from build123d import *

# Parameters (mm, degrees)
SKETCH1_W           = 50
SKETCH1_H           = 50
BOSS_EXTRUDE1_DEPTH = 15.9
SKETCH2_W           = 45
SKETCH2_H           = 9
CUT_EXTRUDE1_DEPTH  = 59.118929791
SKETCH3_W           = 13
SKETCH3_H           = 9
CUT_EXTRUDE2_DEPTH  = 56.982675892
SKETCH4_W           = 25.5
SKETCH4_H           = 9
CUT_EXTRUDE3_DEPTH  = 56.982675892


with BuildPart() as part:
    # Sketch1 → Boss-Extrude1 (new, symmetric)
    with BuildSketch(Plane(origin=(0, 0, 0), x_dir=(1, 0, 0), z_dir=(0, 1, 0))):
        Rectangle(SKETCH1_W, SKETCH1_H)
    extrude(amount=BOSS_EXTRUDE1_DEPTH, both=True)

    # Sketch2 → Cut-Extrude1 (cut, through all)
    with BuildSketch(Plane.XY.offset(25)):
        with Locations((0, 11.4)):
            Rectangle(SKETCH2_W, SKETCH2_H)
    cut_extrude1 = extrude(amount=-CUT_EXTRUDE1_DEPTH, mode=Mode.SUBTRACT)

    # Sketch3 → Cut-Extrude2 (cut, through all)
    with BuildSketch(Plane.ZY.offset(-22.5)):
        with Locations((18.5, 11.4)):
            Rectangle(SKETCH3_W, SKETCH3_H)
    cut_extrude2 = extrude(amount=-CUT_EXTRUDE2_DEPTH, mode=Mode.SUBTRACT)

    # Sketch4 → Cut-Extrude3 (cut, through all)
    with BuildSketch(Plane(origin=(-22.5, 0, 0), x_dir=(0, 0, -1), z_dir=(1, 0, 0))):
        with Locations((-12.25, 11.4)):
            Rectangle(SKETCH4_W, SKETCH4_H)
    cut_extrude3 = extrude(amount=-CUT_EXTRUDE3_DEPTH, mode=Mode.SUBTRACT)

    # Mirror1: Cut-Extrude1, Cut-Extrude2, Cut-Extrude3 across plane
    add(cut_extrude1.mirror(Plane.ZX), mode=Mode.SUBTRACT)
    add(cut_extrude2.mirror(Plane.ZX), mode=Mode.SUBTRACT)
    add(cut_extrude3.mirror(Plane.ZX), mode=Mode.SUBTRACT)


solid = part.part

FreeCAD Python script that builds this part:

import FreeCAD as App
import Part
import Sketcher
from FreeCAD import Vector
Q = App.Units.Quantity

doc = App.newDocument("Part")
body = doc.addObject("PartDesign::Body", "Body")

sketch1 = body.newObject("Sketcher::SketchObject", "Sketch")
sketch1.AttachmentSupport = (doc.getObject("XZ_Plane"), [""])
sketch1.MapMode = "FlatFace"
sketch1.addGeometry(Part.LineSegment(Vector(-25, -25, 0), Vector(-25, 25, 0)), False)
sketch1.addGeometry(Part.LineSegment(Vector(-25, 25, 0), Vector(25, 25, 0)), False)
sketch1.addGeometry(Part.LineSegment(Vector(25, 25, 0), Vector(25, -25, 0)), False)
sketch1.addGeometry(Part.LineSegment(Vector(25, -25, 0), Vector(-25, -25, 0)), False)
sketch1.addConstraint(Sketcher.Constraint("Coincident", 0, 2, 1, 1))
sketch1.addConstraint(Sketcher.Constraint("Coincident", 1, 2, 2, 1))
sketch1.addConstraint(Sketcher.Constraint("Coincident", 2, 2, 3, 1))
sketch1.addConstraint(Sketcher.Constraint("Coincident", 3, 2, 0, 1))
sketch1.addConstraint(Sketcher.Constraint("Vertical", 0))
sketch1.addConstraint(Sketcher.Constraint("Horizontal", 1))
sketch1.addConstraint(Sketcher.Constraint("Vertical", 2))
sketch1.addConstraint(Sketcher.Constraint("Horizontal", 3))
sketch1.addConstraint(Sketcher.Constraint("Symmetric", 0, 2, 2, 2, -1, 1))
sketch1.addConstraint(Sketcher.Constraint("Equal", 3, 0))
sketch1.addConstraint(Sketcher.Constraint("DistanceX", 1, 1, 1, 2, Q("50 mm")))
pad1 = body.newObject("PartDesign::Pad", "Pad")
pad1.Profile = sketch1
pad1.Length = 31.8
pad1.Midplane = True

sketch2 = body.newObject("Sketcher::SketchObject", "Sketch001")
sketch2.AttachmentSupport = (doc.getObject("XY_Plane"), [""])
sketch2.MapMode = "FlatFace"
sketch2.AttachmentOffset = App.Placement(Vector(0, 0, 25), App.Rotation())
sketch2.addGeometry(Part.LineSegment(Vector(-22, 16, 0), Vector(-22, 7, 0)), False)
sketch2.addGeometry(Part.LineSegment(Vector(-22, 7, 0), Vector(22, 7, 0)), False)
sketch2.addGeometry(Part.LineSegment(Vector(22, 7, 0), Vector(22, 16, 0)), False)
sketch2.addGeometry(Part.LineSegment(Vector(22, 16, 0), Vector(-22, 16, 0)), False)
sketch2.addConstraint(Sketcher.Constraint("Coincident", 0, 2, 1, 1))
sketch2.addConstraint(Sketcher.Constraint("Coincident", 1, 2, 2, 1))
sketch2.addConstraint(Sketcher.Constraint("Coincident", 2, 2, 3, 1))
sketch2.addConstraint(Sketcher.Constraint("Coincident", 3, 2, 0, 1))
sketch2.addConstraint(Sketcher.Constraint("Vertical", 0))
sketch2.addConstraint(Sketcher.Constraint("Horizontal", 1))
sketch2.addConstraint(Sketcher.Constraint("Vertical", 2))
sketch2.addConstraint(Sketcher.Constraint("Horizontal", 3))
sketch2.addConstraint(Sketcher.Constraint("DistanceX", 1, 1, 1, 2, Q("45 mm")))
sketch2.addConstraint(Sketcher.Constraint("DistanceY", 0, 2, 0, 1, Q("9 mm")))
sketch2.addConstraint(Sketcher.Constraint("DistanceX", 0, 2, -1, 1, Q("22.5 mm")))
sketch2.addConstraint(Sketcher.Constraint("DistanceY", -1, 1, 0, 2, Q("6.9 mm")))
pocket1 = body.newObject("PartDesign::Pocket", "Pocket")
pocket1.Profile = sketch2
pocket1.Type = "ThroughAll"

sketch3 = body.newObject("Sketcher::SketchObject", "Sketch002")
sketch3.AttachmentSupport = (doc.getObject("YZ_Plane"), [""])
sketch3.MapMode = "FlatFace"
sketch3.AttachmentOffset = App.Placement(Vector(0, 0, 22.5), App.Rotation())
sketch3.addGeometry(Part.LineSegment(Vector(16, 12, 0), Vector(7, 12, 0)), False)
sketch3.addGeometry(Part.LineSegment(Vector(7, 12, 0), Vector(7, 25, 0)), False)
sketch3.addGeometry(Part.LineSegment(Vector(7, 25, 0), Vector(16, 25, 0)), False)
sketch3.addGeometry(Part.LineSegment(Vector(16, 25, 0), Vector(16, 12, 0)), False)
sketch3.addConstraint(Sketcher.Constraint("Coincident", 0, 2, 1, 1))
sketch3.addConstraint(Sketcher.Constraint("Coincident", 1, 2, 2, 1))
sketch3.addConstraint(Sketcher.Constraint("Coincident", 2, 2, 3, 1))
sketch3.addConstraint(Sketcher.Constraint("Coincident", 3, 2, 0, 1))
sketch3.addConstraint(Sketcher.Constraint("Horizontal", 0))
sketch3.addConstraint(Sketcher.Constraint("Vertical", 1))
sketch3.addConstraint(Sketcher.Constraint("Horizontal", 2))
sketch3.addConstraint(Sketcher.Constraint("Vertical", 3))
sketch3.addConstraint(Sketcher.Constraint("DistanceX", 0, 2, 0, 1, Q("9 mm")))
sketch3.addConstraint(Sketcher.Constraint("DistanceY", 1, 1, 1, 2, Q("13 mm")))
sketch3.addConstraint(Sketcher.Constraint("DistanceY", -1, 1, 0, 2, Q("12 mm")))
sketch3.addConstraint(Sketcher.Constraint("DistanceX", -1, 1, 0, 2, Q("6.9 mm")))
pocket2 = body.newObject("PartDesign::Pocket", "Pocket001")
pocket2.Profile = sketch3
pocket2.Type = "ThroughAll"
pocket2.Reversed = True

sketch4 = body.newObject("Sketcher::SketchObject", "Sketch003")
sketch4.AttachmentSupport = (doc.getObject("YZ_Plane"), [""])
sketch4.MapMode = "FlatFace"
sketch4.AttachmentOffset = App.Placement(Vector(0, 0, -22.5), App.Rotation())
sketch4.addGeometry(Part.LineSegment(Vector(16, 25, 0), Vector(7, 25, 0)), False)
sketch4.addGeometry(Part.LineSegment(Vector(7, 25, 0), Vector(7, 0, 0)), False)
sketch4.addGeometry(Part.LineSegment(Vector(7, 0, 0), Vector(16, 0, 0)), False)
sketch4.addGeometry(Part.LineSegment(Vector(16, 0, 0), Vector(16, 25, 0)), False)
sketch4.addConstraint(Sketcher.Constraint("Coincident", 0, 2, 1, 1))
sketch4.addConstraint(Sketcher.Constraint("Coincident", 1, 2, 2, 1))
sketch4.addConstraint(Sketcher.Constraint("Coincident", 2, 2, 3, 1))
sketch4.addConstraint(Sketcher.Constraint("Coincident", 3, 2, 0, 1))
sketch4.addConstraint(Sketcher.Constraint("Horizontal", 0))
sketch4.addConstraint(Sketcher.Constraint("Vertical", 1))
sketch4.addConstraint(Sketcher.Constraint("Horizontal", 2))
sketch4.addConstraint(Sketcher.Constraint("Vertical", 3))
sketch4.addConstraint(Sketcher.Constraint("DistanceX", 0, 2, 0, 1, Q("9 mm")))
sketch4.addConstraint(Sketcher.Constraint("DistanceY", 1, 2, 1, 1, Q("25.5 mm")))
sketch4.addConstraint(Sketcher.Constraint("DistanceY", -1, 1, 0, 2, Q("25 mm")))
sketch4.addConstraint(Sketcher.Constraint("DistanceX", -1, 1, 0, 2, Q("6.9 mm")))
pocket3 = body.newObject("PartDesign::Pocket", "Pocket002")
pocket3.Profile = sketch4
pocket3.Type = "ThroughAll"
doc.recompute()

mirrored = body.newObject("PartDesign::Mirrored", "Mirrored")
mirrored.Originals = [pocket1, pocket2, pocket3]
mirrored.MirrorPlane = (doc.getObject("XZ_Plane"), [""])
body.Tip = mirrored

doc.recompute()
